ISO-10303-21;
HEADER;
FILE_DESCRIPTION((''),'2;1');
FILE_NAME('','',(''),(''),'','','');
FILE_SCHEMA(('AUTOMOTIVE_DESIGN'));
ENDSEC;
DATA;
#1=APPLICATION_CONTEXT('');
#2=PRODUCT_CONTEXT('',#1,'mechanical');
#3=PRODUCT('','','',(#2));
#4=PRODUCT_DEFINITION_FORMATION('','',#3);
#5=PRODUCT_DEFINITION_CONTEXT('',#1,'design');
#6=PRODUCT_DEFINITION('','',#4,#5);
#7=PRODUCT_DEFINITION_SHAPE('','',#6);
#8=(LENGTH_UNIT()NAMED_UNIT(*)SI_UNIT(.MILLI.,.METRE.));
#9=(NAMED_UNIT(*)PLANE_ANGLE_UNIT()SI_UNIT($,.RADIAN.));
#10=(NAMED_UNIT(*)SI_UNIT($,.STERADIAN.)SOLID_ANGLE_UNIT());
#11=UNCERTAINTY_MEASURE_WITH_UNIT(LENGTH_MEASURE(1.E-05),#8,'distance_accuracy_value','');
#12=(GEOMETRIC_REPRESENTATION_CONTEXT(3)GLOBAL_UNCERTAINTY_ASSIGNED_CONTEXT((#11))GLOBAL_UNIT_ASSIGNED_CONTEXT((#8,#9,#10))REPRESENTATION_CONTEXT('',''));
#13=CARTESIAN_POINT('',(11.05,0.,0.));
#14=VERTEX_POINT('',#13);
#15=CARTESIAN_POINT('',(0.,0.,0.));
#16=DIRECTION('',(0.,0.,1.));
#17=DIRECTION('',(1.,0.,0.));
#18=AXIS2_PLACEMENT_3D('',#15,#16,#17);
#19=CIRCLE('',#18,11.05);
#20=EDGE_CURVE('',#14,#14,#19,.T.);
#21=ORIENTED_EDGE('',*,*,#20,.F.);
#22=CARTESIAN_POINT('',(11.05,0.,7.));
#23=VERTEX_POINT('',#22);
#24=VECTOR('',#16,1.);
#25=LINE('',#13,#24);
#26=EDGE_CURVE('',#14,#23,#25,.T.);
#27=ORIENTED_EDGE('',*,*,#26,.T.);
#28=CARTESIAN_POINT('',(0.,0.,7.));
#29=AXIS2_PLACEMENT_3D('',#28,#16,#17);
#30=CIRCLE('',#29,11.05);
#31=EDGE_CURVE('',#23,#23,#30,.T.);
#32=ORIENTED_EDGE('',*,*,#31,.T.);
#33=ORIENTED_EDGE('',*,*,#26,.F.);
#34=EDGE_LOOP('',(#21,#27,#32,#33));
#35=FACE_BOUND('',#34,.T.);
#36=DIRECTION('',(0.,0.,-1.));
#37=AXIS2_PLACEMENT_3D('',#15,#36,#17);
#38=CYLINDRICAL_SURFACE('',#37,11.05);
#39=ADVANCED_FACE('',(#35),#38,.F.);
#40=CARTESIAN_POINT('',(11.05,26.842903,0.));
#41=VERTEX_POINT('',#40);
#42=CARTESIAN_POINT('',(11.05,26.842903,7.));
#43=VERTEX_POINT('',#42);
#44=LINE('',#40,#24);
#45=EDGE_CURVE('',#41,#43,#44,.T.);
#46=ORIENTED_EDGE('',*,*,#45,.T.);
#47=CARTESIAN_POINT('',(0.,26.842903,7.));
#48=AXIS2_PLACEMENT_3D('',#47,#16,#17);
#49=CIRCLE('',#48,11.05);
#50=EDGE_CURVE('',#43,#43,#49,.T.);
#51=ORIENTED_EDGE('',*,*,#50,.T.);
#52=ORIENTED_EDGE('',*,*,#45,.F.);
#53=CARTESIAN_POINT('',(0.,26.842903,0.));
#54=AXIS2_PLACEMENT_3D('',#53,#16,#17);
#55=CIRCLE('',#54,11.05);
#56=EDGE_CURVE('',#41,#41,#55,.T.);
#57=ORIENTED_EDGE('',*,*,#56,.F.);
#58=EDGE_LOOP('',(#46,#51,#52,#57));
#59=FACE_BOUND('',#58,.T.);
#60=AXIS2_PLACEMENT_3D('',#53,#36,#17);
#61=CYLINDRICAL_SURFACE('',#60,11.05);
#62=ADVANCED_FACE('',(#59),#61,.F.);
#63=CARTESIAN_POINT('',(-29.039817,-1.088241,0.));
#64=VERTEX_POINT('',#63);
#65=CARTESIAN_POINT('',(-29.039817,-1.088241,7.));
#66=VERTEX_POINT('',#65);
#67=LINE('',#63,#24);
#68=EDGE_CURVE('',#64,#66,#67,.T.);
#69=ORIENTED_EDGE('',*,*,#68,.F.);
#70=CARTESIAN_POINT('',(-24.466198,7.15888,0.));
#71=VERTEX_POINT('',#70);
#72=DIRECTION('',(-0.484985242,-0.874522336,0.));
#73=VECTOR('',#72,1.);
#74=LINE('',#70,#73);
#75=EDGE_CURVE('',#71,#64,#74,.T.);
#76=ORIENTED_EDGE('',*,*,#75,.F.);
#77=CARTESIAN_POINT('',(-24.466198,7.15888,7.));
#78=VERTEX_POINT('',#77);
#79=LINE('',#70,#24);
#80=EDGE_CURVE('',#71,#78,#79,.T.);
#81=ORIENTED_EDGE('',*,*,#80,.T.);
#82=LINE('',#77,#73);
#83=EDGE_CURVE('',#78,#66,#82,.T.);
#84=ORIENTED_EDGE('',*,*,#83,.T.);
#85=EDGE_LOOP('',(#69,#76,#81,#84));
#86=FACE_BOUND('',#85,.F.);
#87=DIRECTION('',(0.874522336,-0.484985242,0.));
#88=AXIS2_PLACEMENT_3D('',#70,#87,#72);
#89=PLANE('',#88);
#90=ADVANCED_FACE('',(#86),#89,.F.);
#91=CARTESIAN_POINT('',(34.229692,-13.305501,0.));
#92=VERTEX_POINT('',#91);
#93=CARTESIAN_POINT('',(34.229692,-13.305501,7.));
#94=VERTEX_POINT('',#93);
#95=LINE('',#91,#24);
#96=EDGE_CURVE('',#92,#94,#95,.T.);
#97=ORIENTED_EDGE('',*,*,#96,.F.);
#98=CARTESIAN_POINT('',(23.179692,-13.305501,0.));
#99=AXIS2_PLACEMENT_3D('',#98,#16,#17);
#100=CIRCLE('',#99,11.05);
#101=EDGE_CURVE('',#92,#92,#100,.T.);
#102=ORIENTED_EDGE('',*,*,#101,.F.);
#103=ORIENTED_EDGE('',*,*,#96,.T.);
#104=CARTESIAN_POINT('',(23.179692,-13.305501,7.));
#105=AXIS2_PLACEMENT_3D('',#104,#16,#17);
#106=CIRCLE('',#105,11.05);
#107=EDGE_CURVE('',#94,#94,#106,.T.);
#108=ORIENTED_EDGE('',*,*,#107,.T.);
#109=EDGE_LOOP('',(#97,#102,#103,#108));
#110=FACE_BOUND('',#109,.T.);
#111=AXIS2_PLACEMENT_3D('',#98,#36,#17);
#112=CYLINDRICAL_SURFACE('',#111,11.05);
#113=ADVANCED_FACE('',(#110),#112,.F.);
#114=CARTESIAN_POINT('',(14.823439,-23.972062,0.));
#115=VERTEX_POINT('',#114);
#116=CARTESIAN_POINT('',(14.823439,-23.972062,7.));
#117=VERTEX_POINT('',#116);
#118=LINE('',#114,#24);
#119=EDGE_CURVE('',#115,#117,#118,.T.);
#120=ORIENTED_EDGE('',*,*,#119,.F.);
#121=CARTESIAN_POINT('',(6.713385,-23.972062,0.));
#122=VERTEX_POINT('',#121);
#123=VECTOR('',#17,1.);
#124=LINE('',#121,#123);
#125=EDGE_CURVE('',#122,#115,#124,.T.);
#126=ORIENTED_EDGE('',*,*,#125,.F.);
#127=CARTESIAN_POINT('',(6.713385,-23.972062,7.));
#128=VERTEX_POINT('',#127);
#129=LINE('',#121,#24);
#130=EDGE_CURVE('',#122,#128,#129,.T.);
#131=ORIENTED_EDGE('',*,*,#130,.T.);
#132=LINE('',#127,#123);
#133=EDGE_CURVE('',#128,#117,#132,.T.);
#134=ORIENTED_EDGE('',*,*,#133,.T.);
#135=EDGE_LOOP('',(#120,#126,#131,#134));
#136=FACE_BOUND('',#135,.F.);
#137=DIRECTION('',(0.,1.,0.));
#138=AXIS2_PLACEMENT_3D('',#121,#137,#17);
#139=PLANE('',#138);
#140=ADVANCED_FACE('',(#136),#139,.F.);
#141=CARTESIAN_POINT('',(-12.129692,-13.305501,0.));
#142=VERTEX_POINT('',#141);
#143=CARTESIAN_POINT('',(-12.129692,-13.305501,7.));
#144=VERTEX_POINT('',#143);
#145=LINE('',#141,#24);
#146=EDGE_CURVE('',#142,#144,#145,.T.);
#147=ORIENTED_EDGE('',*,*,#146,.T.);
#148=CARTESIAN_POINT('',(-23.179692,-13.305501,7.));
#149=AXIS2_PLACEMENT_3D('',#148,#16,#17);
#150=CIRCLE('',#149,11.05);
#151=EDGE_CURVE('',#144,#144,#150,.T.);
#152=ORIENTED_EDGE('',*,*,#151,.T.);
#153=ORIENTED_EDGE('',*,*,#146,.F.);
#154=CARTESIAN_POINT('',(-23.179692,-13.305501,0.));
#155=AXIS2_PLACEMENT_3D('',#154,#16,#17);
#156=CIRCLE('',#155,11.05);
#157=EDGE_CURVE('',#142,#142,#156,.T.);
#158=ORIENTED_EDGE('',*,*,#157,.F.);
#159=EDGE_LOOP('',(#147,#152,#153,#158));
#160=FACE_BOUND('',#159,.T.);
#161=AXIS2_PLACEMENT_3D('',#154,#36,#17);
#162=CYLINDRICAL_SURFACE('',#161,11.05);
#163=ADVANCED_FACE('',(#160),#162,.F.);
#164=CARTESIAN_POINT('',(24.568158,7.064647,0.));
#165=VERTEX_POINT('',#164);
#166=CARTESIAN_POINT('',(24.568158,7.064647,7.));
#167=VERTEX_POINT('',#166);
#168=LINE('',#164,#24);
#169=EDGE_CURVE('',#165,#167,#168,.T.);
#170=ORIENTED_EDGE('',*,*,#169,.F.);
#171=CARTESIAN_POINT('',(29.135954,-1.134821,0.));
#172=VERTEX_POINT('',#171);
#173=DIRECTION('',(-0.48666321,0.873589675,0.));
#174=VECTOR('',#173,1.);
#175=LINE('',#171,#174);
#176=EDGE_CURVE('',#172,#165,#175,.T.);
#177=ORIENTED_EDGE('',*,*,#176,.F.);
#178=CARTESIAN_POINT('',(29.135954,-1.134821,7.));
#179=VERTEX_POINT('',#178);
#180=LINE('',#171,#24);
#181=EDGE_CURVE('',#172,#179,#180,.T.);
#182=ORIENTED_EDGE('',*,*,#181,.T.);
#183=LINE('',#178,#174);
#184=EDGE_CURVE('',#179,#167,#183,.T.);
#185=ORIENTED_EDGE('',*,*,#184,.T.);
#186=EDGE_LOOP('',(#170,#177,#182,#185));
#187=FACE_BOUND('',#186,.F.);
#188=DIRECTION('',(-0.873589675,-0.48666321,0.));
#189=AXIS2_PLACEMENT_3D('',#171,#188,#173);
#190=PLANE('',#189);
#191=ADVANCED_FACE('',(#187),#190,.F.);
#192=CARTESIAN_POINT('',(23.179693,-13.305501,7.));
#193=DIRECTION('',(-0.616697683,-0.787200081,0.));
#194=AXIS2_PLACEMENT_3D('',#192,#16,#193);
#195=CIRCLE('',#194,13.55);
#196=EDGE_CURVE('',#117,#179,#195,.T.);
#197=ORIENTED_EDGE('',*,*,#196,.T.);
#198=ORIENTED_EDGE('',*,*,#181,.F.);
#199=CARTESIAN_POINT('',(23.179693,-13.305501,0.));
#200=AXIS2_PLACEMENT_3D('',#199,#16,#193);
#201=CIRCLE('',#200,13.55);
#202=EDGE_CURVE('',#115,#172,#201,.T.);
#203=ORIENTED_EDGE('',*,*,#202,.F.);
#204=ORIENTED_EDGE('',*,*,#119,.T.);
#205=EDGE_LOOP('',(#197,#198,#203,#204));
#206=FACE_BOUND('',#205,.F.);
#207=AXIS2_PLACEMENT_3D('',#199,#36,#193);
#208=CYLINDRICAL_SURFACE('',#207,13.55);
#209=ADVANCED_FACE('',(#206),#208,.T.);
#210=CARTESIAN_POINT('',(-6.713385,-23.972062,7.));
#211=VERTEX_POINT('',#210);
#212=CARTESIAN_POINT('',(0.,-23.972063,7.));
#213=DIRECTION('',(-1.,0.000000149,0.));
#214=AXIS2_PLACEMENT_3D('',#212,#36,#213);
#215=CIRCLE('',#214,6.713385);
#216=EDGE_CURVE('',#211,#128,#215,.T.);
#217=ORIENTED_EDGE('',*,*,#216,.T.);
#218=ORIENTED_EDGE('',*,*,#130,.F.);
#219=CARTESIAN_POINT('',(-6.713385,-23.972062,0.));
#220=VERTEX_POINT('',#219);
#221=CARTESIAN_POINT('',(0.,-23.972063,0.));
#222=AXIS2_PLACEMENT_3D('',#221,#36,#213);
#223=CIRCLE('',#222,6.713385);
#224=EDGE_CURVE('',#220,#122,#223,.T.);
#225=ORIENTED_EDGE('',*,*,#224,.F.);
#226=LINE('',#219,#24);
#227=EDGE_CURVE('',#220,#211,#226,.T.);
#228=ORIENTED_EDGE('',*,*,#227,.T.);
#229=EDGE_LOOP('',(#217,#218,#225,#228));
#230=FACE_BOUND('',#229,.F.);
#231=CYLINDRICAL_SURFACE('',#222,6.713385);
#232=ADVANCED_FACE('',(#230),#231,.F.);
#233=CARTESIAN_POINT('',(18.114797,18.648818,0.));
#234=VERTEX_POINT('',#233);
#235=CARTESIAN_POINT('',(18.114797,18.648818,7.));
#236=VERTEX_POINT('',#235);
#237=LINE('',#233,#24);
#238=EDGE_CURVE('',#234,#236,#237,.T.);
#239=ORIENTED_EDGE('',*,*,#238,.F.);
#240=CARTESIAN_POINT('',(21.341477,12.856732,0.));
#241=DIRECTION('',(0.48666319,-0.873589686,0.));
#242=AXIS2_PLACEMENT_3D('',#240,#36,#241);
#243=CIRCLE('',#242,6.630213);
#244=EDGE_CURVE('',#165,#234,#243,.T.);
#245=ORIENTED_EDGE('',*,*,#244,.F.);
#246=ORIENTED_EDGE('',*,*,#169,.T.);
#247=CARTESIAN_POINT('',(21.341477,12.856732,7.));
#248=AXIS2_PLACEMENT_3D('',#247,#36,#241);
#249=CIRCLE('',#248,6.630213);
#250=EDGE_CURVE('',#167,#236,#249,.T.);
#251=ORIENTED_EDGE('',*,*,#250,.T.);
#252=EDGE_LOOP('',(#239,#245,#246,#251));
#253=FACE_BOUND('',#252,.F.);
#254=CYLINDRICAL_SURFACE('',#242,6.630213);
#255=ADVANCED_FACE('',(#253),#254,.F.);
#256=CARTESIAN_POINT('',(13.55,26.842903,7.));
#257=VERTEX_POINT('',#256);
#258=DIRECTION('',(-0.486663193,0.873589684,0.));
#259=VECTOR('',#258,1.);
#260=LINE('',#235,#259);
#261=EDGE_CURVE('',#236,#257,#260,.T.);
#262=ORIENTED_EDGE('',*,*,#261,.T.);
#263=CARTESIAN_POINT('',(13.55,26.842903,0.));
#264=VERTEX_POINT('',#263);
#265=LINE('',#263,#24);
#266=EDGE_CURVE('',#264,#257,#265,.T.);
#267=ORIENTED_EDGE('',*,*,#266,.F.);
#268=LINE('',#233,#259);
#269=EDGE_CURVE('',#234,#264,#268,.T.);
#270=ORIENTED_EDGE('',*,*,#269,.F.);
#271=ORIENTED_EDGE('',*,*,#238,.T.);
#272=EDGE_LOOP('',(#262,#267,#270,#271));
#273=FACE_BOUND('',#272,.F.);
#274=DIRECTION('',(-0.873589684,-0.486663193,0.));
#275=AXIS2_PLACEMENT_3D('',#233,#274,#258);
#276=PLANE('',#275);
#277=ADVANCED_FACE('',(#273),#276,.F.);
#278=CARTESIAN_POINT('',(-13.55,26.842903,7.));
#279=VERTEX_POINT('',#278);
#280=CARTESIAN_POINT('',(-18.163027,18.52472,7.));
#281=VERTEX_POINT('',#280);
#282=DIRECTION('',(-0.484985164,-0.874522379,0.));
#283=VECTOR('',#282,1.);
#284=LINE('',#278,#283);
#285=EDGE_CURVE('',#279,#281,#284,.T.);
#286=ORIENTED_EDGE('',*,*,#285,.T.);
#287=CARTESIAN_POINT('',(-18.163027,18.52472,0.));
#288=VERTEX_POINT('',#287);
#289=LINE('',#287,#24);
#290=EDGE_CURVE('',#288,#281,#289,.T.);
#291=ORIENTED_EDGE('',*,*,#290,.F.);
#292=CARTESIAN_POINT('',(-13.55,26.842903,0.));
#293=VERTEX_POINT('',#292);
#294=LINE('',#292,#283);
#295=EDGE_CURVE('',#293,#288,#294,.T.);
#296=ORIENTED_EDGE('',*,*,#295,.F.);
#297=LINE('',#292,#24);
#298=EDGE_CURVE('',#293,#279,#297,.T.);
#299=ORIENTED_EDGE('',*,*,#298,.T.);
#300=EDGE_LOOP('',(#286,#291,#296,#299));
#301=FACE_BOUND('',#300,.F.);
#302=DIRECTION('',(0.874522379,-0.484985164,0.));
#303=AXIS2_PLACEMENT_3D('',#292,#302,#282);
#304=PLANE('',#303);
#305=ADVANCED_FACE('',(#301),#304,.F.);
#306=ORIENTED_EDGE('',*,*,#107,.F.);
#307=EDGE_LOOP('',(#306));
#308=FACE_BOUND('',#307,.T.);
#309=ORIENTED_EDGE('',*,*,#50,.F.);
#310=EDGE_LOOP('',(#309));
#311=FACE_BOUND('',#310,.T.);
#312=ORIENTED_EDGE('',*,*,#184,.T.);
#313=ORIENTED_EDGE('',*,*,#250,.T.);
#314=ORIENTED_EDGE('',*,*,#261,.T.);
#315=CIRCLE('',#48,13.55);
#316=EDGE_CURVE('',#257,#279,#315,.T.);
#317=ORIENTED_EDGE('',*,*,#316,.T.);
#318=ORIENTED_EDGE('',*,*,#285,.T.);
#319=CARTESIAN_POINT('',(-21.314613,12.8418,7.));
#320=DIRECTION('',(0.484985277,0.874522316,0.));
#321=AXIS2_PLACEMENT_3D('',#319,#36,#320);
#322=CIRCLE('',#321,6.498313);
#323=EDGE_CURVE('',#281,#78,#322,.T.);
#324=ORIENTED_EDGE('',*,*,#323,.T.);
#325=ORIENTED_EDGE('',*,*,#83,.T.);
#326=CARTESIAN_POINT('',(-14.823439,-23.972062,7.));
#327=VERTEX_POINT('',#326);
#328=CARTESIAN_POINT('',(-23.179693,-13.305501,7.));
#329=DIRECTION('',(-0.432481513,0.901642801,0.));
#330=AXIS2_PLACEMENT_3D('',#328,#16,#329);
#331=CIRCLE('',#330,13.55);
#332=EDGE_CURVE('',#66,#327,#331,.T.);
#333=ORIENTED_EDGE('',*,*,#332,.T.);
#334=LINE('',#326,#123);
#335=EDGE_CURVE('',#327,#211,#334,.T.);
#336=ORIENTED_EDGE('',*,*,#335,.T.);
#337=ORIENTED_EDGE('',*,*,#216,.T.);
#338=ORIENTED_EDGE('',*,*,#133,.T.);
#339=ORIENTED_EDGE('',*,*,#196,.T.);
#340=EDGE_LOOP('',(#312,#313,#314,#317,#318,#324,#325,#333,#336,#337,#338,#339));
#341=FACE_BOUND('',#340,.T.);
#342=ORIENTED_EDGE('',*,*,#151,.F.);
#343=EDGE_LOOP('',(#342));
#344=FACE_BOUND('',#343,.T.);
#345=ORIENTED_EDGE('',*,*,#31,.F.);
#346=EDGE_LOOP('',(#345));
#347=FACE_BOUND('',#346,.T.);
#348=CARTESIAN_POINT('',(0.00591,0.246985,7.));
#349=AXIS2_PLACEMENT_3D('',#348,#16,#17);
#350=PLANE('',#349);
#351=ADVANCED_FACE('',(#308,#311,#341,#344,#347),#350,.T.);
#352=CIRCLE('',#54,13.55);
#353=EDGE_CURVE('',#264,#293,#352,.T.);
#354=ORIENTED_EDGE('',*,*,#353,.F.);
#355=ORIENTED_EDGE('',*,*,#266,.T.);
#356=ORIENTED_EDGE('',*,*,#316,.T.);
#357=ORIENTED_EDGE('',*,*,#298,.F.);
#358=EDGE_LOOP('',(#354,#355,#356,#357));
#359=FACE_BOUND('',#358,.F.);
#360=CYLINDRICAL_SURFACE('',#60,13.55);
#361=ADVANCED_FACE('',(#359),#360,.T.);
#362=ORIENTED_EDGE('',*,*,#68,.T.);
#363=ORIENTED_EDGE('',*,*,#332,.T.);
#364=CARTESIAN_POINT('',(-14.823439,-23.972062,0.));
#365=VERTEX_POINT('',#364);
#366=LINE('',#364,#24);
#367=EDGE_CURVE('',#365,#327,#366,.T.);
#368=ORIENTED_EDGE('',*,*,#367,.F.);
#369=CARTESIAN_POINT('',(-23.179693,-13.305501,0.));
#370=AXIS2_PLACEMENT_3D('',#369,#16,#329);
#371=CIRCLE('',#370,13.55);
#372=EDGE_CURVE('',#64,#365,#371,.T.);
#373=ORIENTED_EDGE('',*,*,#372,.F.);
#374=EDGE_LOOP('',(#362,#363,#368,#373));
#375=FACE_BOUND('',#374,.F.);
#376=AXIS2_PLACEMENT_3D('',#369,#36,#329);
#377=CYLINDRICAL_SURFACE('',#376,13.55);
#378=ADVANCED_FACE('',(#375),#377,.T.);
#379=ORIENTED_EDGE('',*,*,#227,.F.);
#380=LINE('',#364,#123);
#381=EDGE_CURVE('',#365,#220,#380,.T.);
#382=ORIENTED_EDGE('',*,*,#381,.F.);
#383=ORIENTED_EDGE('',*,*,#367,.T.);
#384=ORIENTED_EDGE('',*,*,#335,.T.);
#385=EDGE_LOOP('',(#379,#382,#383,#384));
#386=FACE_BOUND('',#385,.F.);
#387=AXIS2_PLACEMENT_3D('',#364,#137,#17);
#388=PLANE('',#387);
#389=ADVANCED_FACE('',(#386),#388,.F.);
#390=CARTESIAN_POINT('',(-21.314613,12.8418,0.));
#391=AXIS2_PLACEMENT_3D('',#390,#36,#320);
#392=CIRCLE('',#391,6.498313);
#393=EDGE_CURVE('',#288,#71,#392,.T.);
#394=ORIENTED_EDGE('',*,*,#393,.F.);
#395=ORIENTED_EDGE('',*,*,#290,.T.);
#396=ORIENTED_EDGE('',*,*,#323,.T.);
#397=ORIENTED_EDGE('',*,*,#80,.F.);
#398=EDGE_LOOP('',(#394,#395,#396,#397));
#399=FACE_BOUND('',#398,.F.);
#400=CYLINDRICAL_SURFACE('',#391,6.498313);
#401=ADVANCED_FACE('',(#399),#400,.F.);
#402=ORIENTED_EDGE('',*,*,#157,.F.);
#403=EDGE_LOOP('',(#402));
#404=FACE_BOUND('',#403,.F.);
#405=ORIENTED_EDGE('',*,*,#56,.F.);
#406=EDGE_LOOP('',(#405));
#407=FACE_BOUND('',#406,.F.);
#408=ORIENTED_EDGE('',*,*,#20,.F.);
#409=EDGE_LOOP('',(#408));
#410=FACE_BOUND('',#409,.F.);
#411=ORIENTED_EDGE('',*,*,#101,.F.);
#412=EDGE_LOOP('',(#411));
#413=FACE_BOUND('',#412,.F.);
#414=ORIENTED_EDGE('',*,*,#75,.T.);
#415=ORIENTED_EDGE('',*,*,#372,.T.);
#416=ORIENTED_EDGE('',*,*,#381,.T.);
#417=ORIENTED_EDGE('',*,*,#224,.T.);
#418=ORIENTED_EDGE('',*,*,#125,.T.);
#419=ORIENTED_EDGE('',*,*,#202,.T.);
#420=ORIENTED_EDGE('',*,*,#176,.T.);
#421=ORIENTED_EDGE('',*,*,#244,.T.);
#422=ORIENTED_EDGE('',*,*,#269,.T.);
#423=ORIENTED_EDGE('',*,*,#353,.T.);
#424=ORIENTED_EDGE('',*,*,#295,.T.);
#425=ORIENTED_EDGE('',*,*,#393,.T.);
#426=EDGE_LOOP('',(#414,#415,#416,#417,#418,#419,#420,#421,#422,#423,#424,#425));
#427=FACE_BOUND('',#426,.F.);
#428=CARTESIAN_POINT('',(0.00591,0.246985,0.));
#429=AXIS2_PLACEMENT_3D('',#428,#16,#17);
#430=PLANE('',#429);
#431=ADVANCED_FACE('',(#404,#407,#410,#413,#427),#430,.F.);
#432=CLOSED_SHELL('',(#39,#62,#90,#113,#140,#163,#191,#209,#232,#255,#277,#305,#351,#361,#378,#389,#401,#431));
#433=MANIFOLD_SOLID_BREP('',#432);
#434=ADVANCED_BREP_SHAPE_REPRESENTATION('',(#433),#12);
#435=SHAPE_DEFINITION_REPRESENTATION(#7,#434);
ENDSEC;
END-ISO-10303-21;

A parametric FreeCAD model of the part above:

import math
import FreeCAD as App
import Part
import Sketcher
from FreeCAD import Vector
Q = App.Units.Quantity

doc = App.newDocument("Part")
body = doc.addObject("PartDesign::Body", "Body")

sketch1 = doc.addObject("Sketcher::SketchObject", "Sketch")
body.addObject(sketch1)
sketch1.AttachmentSupport = (doc.XY_Plane, [""])
sketch1.MapMode = "FlatFace"
sketch1.addGeometry([
    Part.LineSegment(Vector(18.114797, 18.648818, 0), Vector(13.55, 26.842903, 0)),
    Part.ArcOfCircle(Part.Circle(Vector(0, 26.842903, 0), Vector(0, 0, 1), 13.55), math.radians(0), math.radians(180)),
    Part.LineSegment(Vector(-13.55, 26.842903, 0), Vector(-18.163027, 18.52472, 0)),
    Part.ArcOfCircle(Part.Circle(Vector(-21.314613, 12.8418, 0), Vector(0, 0, 1), 6.498313), math.radians(-119.011496), math.radians(60.988492)),
    Part.LineSegment(Vector(-24.466198, 7.15888, 0), Vector(-29.039817, -1.088241, 0)),
    Part.ArcOfCircle(Part.Circle(Vector(-23.179693, -13.305501, 0), Vector(0, 0, 1), 13.55), math.radians(115.625147), math.radians(308.075381)),
    Part.LineSegment(Vector(-14.823439, -23.972062, 0), Vector(-6.713385, -23.972062, 0)),
    Part.ArcOfCircle(Part.Circle(Vector(0, -23.972063, 0), Vector(0, 0, 1), 6.713385), math.radians(0.000009), math.radians(179.999991)),
    Part.LineSegment(Vector(6.713385, -23.972062, 0), Vector(14.823439, -23.972062, 0)),
    Part.ArcOfCircle(Part.Circle(Vector(23.179693, -13.305501, 0), Vector(0, 0, 1), 13.55), math.radians(-128.075381), math.radians(63.923137)),
    Part.LineSegment(Vector(29.135954, -1.134821, 0), Vector(24.568158, 7.064647, 0)),
    Part.ArcOfCircle(Part.Circle(Vector(21.341477, 12.856732, 0), Vector(0, 0, 1), 6.630213), math.radians(119.121498), math.radians(299.121498)),
    Part.Circle(Vector(-23.179692, -13.305501, 0), Vector(0, 0, 1), 11.05),
    Part.Circle(Vector(23.179692, -13.305501, 0), Vector(0, 0, 1), 11.05),
    Part.Circle(Vector(0, 0, 0), Vector(0, 0, 1), 11.05),
    Part.Circle(Vector(0, 26.842903, 0), Vector(0, 0, 1), 11.05),
], False)
sketch1.addConstraint([
    Sketcher.Constraint("Coincident", 0, 2, 1, 1),
    Sketcher.Constraint("Coincident", 1, 2, 2, 1),
    Sketcher.Constraint("Coincident", 2, 2, 3, 2),
    Sketcher.Constraint("Coincident", 3, 1, 4, 1),
    Sketcher.Constraint("Coincident", 4, 2, 5, 1),
    Sketcher.Constraint("Coincident", 5, 2, 6, 1),
    Sketcher.Constraint("Coincident", 6, 2, 7, 2),
    Sketcher.Constraint("Coincident", 7, 1, 8, 1),
    Sketcher.Constraint("Coincident", 8, 2, 9, 1),
    Sketcher.Constraint("Coincident", 9, 2, 10, 1),
    Sketcher.Constraint("Coincident", 10, 2, 11, 2),
    Sketcher.Constraint("Coincident", 11, 1, 0, 1),
    Sketcher.Constraint("Horizontal", 6),
    Sketcher.Constraint("Horizontal", 8),
    Sketcher.Constraint("Coincident", 14, 3, -1, 1),
    Sketcher.Constraint("Coincident", 12, 3, 5, 3),
    Sketcher.Constraint("Coincident", 13, 3, 9, 3),
    Sketcher.Constraint("Coincident", 15, 3, 1, 3),
    Sketcher.Constraint("Equal", 1, 5),
    Sketcher.Constraint("Equal", 5, 9),
    Sketcher.Constraint("Equal", 12, 13),
    Sketcher.Constraint("Equal", 13, 14),
    Sketcher.Constraint("Equal", 14, 15),
    Sketcher.Constraint("Symmetric", 5, 3, 9, 3, -2),
    Sketcher.Constraint("Symmetric", 0, 2, 1, 2, -2),
    Sketcher.Constraint("Symmetric", 6, 2, 7, 1, -2),
    Sketcher.Constraint("Parallel", 2, 4),
    Sketcher.Constraint("Parallel", 0, 10),
    Sketcher.Constraint("Horizontal", 15, 3, 0, 2),
    Sketcher.Constraint("Horizontal", 7, 3, 5, 2),
    Sketcher.Constraint("Diameter", 12, Q("22.1 mm")),
    Sketcher.Constraint("Radius", 1, Q("13.55 mm")),
    Sketcher.Constraint("Radius", 3, Q("6.498313 mm")),
    Sketcher.Constraint("Radius", 7, Q("6.713385 mm")),
    Sketcher.Constraint("Radius", 11, Q("6.630213 mm")),
    Sketcher.Constraint("DistanceY", -1, 1, 3, 3, Q("12.8418 mm")),
    Sketcher.Constraint("DistanceY", 5, 3, -1, 1, Q("13.305501 mm")),
    Sketcher.Constraint("Distance", 4, Q("9.430429 mm")),
    Sketcher.Constraint("Distance", 10, Q("9.385949 mm")),
    Sketcher.Constraint("DistanceX", 6, 1, 6, 2, Q("8.110054 mm")),
    Sketcher.Constraint("DistanceX", 12, 3, -1, 1, Q("23.179692 mm")),
    Sketcher.Constraint("DistanceY", -1, 1, 2, 2, Q("18.52472 mm")),
    Sketcher.Constraint("DistanceY", -1, 1, 3, 1, Q("7.15888 mm")),
    Sketcher.Constraint("DistanceY", 4, 2, -1, 1, Q("1.088241 mm")),
    Sketcher.Constraint("DistanceY", 9, 2, -1, 1, Q("1.134821 mm")),
    Sketcher.Constraint("DistanceX", -1, 1, 10, 2, Q("24.568158 mm")),
    Sketcher.Constraint("DistanceY", 11, 3, 1, 3, Q("13.986171 mm")),
])
pad1 = doc.addObject("PartDesign::Pad", "Pad")
body.addObject(pad1)
pad1.Profile = sketch1
pad1.Length = 7

doc.recompute()
